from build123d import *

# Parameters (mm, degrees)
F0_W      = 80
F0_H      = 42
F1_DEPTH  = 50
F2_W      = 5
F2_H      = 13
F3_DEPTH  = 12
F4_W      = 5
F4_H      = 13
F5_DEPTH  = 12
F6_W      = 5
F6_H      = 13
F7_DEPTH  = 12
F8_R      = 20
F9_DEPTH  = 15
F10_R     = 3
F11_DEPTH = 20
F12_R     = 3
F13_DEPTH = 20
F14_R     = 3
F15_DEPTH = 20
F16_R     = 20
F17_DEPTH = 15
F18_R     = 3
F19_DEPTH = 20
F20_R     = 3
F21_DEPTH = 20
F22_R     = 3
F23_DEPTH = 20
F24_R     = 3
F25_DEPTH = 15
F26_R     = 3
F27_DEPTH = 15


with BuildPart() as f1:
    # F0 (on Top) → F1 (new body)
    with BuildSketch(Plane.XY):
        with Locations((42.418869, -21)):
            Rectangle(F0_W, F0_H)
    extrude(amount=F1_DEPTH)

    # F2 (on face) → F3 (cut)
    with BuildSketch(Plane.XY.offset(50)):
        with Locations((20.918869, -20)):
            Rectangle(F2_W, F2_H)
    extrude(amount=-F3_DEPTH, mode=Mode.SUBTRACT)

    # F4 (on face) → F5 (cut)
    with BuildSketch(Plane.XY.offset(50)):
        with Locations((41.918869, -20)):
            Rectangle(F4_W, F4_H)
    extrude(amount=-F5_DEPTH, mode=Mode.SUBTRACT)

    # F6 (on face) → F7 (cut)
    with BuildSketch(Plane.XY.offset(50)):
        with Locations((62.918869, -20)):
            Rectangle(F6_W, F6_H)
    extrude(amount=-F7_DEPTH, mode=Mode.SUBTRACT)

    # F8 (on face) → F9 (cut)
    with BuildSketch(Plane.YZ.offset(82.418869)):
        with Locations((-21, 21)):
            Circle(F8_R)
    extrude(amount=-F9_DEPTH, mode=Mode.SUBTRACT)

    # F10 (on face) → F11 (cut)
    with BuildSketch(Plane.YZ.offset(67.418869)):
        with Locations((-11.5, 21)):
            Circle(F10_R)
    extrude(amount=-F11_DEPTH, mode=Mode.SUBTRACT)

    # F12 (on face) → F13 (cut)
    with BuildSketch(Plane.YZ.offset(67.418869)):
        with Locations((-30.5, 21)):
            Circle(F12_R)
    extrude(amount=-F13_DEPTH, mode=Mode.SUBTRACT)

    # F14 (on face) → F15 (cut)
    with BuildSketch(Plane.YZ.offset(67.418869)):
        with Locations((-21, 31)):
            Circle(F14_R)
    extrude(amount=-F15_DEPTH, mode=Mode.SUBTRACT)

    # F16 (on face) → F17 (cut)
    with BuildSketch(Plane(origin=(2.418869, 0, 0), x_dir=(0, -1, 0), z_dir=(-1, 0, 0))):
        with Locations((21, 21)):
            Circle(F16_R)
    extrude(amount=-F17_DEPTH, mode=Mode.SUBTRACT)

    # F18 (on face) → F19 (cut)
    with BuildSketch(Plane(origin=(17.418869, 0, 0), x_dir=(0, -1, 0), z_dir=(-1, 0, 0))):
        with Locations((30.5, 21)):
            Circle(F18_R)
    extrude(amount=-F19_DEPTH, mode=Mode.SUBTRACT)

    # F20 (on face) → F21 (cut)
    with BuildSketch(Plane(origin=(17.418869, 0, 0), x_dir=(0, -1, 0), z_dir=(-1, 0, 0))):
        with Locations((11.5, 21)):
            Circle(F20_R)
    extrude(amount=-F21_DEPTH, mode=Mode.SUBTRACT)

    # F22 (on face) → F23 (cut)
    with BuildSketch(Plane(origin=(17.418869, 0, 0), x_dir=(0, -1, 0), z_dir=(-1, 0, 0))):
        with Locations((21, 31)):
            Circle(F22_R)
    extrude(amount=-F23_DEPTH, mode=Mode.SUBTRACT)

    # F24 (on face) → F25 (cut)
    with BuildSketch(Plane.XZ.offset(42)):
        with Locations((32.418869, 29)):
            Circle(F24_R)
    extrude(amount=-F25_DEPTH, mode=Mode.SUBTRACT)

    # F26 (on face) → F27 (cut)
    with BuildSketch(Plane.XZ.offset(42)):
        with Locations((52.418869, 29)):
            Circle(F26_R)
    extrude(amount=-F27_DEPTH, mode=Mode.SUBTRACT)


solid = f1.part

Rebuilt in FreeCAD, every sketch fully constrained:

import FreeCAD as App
import Part
import Sketcher
from FreeCAD import Vector
Q = App.Units.Quantity


def add_polygon(sketch, points):
    """Adds a closed chain of lines whose ends are joined by coincident constraints."""
    first, n = sketch.GeometryCount, len(points)
    for a, b in zip(points, points[1:] + points[:1]):
        sketch.addGeometry(Part.LineSegment(App.Vector(*a, 0), App.Vector(*b, 0)), False)
    for i in range(n):
        sketch.addConstraint(Sketcher.Constraint("Coincident", first + i, 2, first + (i + 1) % n, 1))

doc = App.newDocument("Part")
body = doc.addObject("PartDesign::Body", "Body")

sketch1 = body.newObject("Sketcher::SketchObject", "Sketch")
sketch1.AttachmentSupport = (doc.getObject("XY_Plane"), [""])
sketch1.MapMode = "FlatFace"
add_polygon(sketch1, [(2.418869, 0), (2.418869, -42), (82.418869, -42), (82.418869, 0)])
sketch1.addConstraint([
    Sketcher.Constraint("Vertical", 0),
    Sketcher.Constraint("Horizontal", 1),
    Sketcher.Constraint("Vertical", 2),
    Sketcher.Constraint("Horizontal", 3),
    Sketcher.Constraint("PointOnObject", 2, 2, -1),
    Sketcher.Constraint("DistanceX", 1, 1, 1, 2, Q("80 mm")),
    Sketcher.Constraint("DistanceY", 0, 2, 0, 1, Q("42 mm")),
    Sketcher.Constraint("DistanceX", -1, 1, 0, 2, Q("2.418869 mm")),
])
pad1 = body.newObject("PartDesign::Pad", "Pad")
pad1.Profile = sketch1
pad1.Length = 50

sketch2 = body.newObject("Sketcher::SketchObject", "Sketch001")
sketch2.AttachmentSupport = (doc.getObject("XY_Plane"), [""])
sketch2.MapMode = "FlatFace"
sketch2.AttachmentOffset = App.Placement(Vector(0, 0, 50), App.Rotation())
add_polygon(sketch2, [(18.418869, -13.5), (18.418869, -26.5), (23.418869, -26.5), (23.418869, -13.5)])
sketch2.addConstraint([
    Sketcher.Constraint("Vertical", 0),
    Sketcher.Constraint("Horizontal", 1),
    Sketcher.Constraint("Vertical", 2),
    Sketcher.Constraint("Horizontal", 3),
    Sketcher.Constraint("DistanceX", 1, 1, 1, 2, Q("5 mm")),
    Sketcher.Constraint("DistanceY", 0, 2, 0, 1, Q("13 mm")),
    Sketcher.Constraint("DistanceY", 0, 2, -1, 1, Q("26.5 mm")),
    Sketcher.Constraint("DistanceX", -1, 1, 0, 2, Q("18.418869 mm")),
])
pocket1 = body.newObject("PartDesign::Pocket", "Pocket")
pocket1.Profile = sketch2
pocket1.Length = 12

sketch3 = body.newObject("Sketcher::SketchObject", "Sketch002")
sketch3.AttachmentSupport = (doc.getObject("XY_Plane"), [""])
sketch3.MapMode = "FlatFace"
sketch3.AttachmentOffset = App.Placement(Vector(0, 0, 50), App.Rotation())
add_polygon(sketch3, [(39.418869, -13.5), (39.418869, -26.5), (44.418869, -26.5), (44.418869, -13.5)])
sketch3.addConstraint([
    Sketcher.Constraint("Vertical", 0),
    Sketcher.Constraint("Horizontal", 1),
    Sketcher.Constraint("Vertical", 2),
    Sketcher.Constraint("Horizontal", 3),
    Sketcher.Constraint("DistanceX", 1, 1, 1, 2, Q("5 mm")),
    Sketcher.Constraint("DistanceY", 0, 2, 0, 1, Q("13 mm")),
    Sketcher.Constraint("DistanceY", 0, 2, -1, 1, Q("26.5 mm")),
    Sketcher.Constraint("DistanceX", -1, 1, 0, 2, Q("39.418869 mm")),
])
pocket2 = body.newObject("PartDesign::Pocket", "Pocket001")
pocket2.Profile = sketch3
pocket2.Length = 12

sketch4 = body.newObject("Sketcher::SketchObject", "Sketch003")
sketch4.AttachmentSupport = (doc.getObject("XY_Plane"), [""])
sketch4.MapMode = "FlatFace"
sketch4.AttachmentOffset = App.Placement(Vector(0, 0, 50), App.Rotation())
add_polygon(sketch4, [(60.418869, -13.5), (60.418869, -26.5), (65.418869, -26.5), (65.418869, -13.5)])
sketch4.addConstraint([
    Sketcher.Constraint("Vertical", 0),
    Sketcher.Constraint("Horizontal", 1),
    Sketcher.Constraint("Vertical", 2),
    Sketcher.Constraint("Horizontal", 3),
    Sketcher.Constraint("DistanceX", 1, 1, 1, 2, Q("5 mm")),
    Sketcher.Constraint("DistanceY", 0, 2, 0, 1, Q("13 mm")),
    Sketcher.Constraint("DistanceY", 0, 2, -1, 1, Q("26.5 mm")),
    Sketcher.Constraint("DistanceX", -1, 1, 0, 2, Q("60.418869 mm")),
])
pocket3 = body.newObject("PartDesign::Pocket", "Pocket002")
pocket3.Profile = sketch4
pocket3.Length = 12

sketch5 = body.newObject("Sketcher::SketchObject", "Sketch004")
sketch5.AttachmentSupport = (doc.getObject("YZ_Plane"), [""])
sketch5.MapMode = "FlatFace"
sketch5.AttachmentOffset = App.Placement(Vector(0, 0, 82.418869), App.Rotation())
sketch5.addGeometry(Part.Circle(Vector(-21, 21, 0), Vector(0, 0, 1), 20), False)
sketch5.addConstraint([
    Sketcher.Constraint("Diameter", 0, Q("40 mm")),
    Sketcher.Constraint("DistanceX", 0, 3, -1, 1, Q("21 mm")),
    Sketcher.Constraint("DistanceY", -1, 1, 0, 3, Q("21 mm")),
])
pocket4 = body.newObject("PartDesign::Pocket", "Pocket003")
pocket4.Profile = sketch5
pocket4.Length = 15

sketch6 = body.newObject("Sketcher::SketchObject", "Sketch005")
sketch6.AttachmentSupport = (doc.getObject("YZ_Plane"), [""])
sketch6.MapMode = "FlatFace"
sketch6.AttachmentOffset = App.Placement(Vector(0, 0, 67.418869), App.Rotation())
sketch6.addGeometry(Part.Circle(Vector(-11.5, 21, 0), Vector(0, 0, 1), 3), False)
sketch6.addConstraint([
    Sketcher.Constraint("Diameter", 0, Q("6 mm")),
    Sketcher.Constraint("DistanceY", -1, 1, 0, 3, Q("21 mm")),
    Sketcher.Constraint("DistanceX", 0, 3, -1, 1, Q("11.5 mm")),
])
pocket5 = body.newObject("PartDesign::Pocket", "Pocket004")
pocket5.Profile = sketch6
pocket5.Length = 20

sketch7 = body.newObject("Sketcher::SketchObject", "Sketch006")
sketch7.AttachmentSupport = (doc.getObject("YZ_Plane"), [""])
sketch7.MapMode = "FlatFace"
sketch7.AttachmentOffset = App.Placement(Vector(0, 0, 67.418869), App.Rotation())
sketch7.addGeometry(Part.Circle(Vector(-30.5, 21, 0), Vector(0, 0, 1), 3), False)
sketch7.addConstraint([
    Sketcher.Constraint("Diameter", 0, Q("6 mm")),
    Sketcher.Constraint("DistanceY", -1, 1, 0, 3, Q("21 mm")),
    Sketcher.Constraint("DistanceX", 0, 3, -1, 1, Q("30.5 mm")),
])
pocket6 = body.newObject("PartDesign::Pocket", "Pocket005")
pocket6.Profile = sketch7
pocket6.Length = 20

sketch8 = body.newObject("Sketcher::SketchObject", "Sketch007")
sketch8.AttachmentSupport = (doc.getObject("YZ_Plane"), [""])
sketch8.MapMode = "FlatFace"
sketch8.AttachmentOffset = App.Placement(Vector(0, 0, 67.418869), App.Rotation())
sketch8.addGeometry(Part.Circle(Vector(-21, 31, 0), Vector(0, 0, 1), 3), False)
sketch8.addConstraint([
    Sketcher.Constraint("Diameter", 0, Q("6 mm")),
    Sketcher.Constraint("DistanceX", 0, 3, -1, 1, Q("21 mm")),
    Sketcher.Constraint("DistanceY", -1, 1, 0, 3, Q("31 mm")),
])
pocket7 = body.newObject("PartDesign::Pocket", "Pocket006")
pocket7.Profile = sketch8
pocket7.Length = 20

sketch9 = body.newObject("Sketcher::SketchObject", "Sketch008")
sketch9.AttachmentSupport = (doc.getObject("YZ_Plane"), [""])
sketch9.MapMode = "FlatFace"
sketch9.AttachmentOffset = App.Placement(Vector(0, 0, 2.418869), App.Rotation())
sketch9.addGeometry(Part.Circle(Vector(-21, 21, 0), Vector(0, 0, 1), 20), False)
sketch9.addConstraint([
    Sketcher.Constraint("Diameter", 0, Q("40 mm")),
    Sketcher.Constraint("DistanceX", 0, 3, -1, 1, Q("21 mm")),
    Sketcher.Constraint("DistanceY", -1, 1, 0, 3, Q("21 mm")),
])
pocket8 = body.newObject("PartDesign::Pocket", "Pocket007")
pocket8.Profile = sketch9
pocket8.Length = 15
pocket8.Reversed = True

sketch10 = body.newObject("Sketcher::SketchObject", "Sketch009")
sketch10.AttachmentSupport = (doc.getObject("YZ_Plane"), [""])
sketch10.MapMode = "FlatFace"
sketch10.AttachmentOffset = App.Placement(Vector(0, 0, 17.418869), App.Rotation())
sketch10.addGeometry(Part.Circle(Vector(-30.5, 21, 0), Vector(0, 0, 1), 3), False)
sketch10.addConstraint([
    Sketcher.Constraint("Diameter", 0, Q("6 mm")),
    Sketcher.Constraint("DistanceY", -1, 1, 0, 3, Q("21 mm")),
    Sketcher.Constraint("DistanceX", 0, 3, -1, 1, Q("30.5 mm")),
])
pocket9 = body.newObject("PartDesign::Pocket", "Pocket008")
pocket9.Profile = sketch10
pocket9.Length = 20
pocket9.Reversed = True

sketch11 = body.newObject("Sketcher::SketchObject", "Sketch010")
sketch11.AttachmentSupport = (doc.getObject("YZ_Plane"), [""])
sketch11.MapMode = "FlatFace"
sketch11.AttachmentOffset = App.Placement(Vector(0, 0, 17.418869), App.Rotation())
sketch11.addGeometry(Part.Circle(Vector(-11.5, 21, 0), Vector(0, 0, 1), 3), False)
sketch11.addConstraint([
    Sketcher.Constraint("Diameter", 0, Q("6 mm")),
    Sketcher.Constraint("DistanceY", -1, 1, 0, 3, Q("21 mm")),
    Sketcher.Constraint("DistanceX", 0, 3, -1, 1, Q("11.5 mm")),
])
pocket10 = body.newObject("PartDesign::Pocket", "Pocket009")
pocket10.Profile = sketch11
pocket10.Length = 20
pocket10.Reversed = True

sketch12 = body.newObject("Sketcher::SketchObject", "Sketch011")
sketch12.AttachmentSupport = (doc.getObject("YZ_Plane"), [""])
sketch12.MapMode = "FlatFace"
sketch12.AttachmentOffset = App.Placement(Vector(0, 0, 17.418869), App.Rotation())
sketch12.addGeometry(Part.Circle(Vector(-21, 31, 0), Vector(0, 0, 1), 3), False)
sketch12.addConstraint([
    Sketcher.Constraint("Diameter", 0, Q("6 mm")),
    Sketcher.Constraint("DistanceX", 0, 3, -1, 1, Q("21 mm")),
    Sketcher.Constraint("DistanceY", -1, 1, 0, 3, Q("31 mm")),
])
pocket11 = body.newObject("PartDesign::Pocket", "Pocket010")
pocket11.Profile = sketch12
pocket11.Length = 20
pocket11.Reversed = True

sketch13 = body.newObject("Sketcher::SketchObject", "Sketch012")
sketch13.AttachmentSupport = (doc.getObject("XZ_Plane"), [""])
sketch13.MapMode = "FlatFace"
sketch13.AttachmentOffset = App.Placement(Vector(0, 0, 42), App.Rotation())
sketch13.addGeometry(Part.Circle(Vector(32.418869, 29, 0), Vector(0, 0, 1), 3), False)
sketch13.addConstraint([
    Sketcher.Constraint("Diameter", 0, Q("6 mm")),
    Sketcher.Constraint("DistanceY", -1, 1, 0, 3, Q("29 mm")),
    Sketcher.Constraint("DistanceX", -1, 1, 0, 3, Q("32.418869 mm")),
])
pocket12 = body.newObject("PartDesign::Pocket", "Pocket011")
pocket12.Profile = sketch13
pocket12.Length = 15

sketch14 = body.newObject("Sketcher::SketchObject", "Sketch013")
sketch14.AttachmentSupport = (doc.getObject("XZ_Plane"), [""])
sketch14.MapMode = "FlatFace"
sketch14.AttachmentOffset = App.Placement(Vector(0, 0, 42), App.Rotation())
sketch14.addGeometry(Part.Circle(Vector(52.418869, 29, 0), Vector(0, 0, 1), 3), False)
sketch14.addConstraint([
    Sketcher.Constraint("Diameter", 0, Q("6 mm")),
    Sketcher.Constraint("DistanceY", -1, 1, 0, 3, Q("29 mm")),
    Sketcher.Constraint("DistanceX", -1, 1, 0, 3, Q("52.418869 mm")),
])
pocket13 = body.newObject("PartDesign::Pocket", "Pocket012")
pocket13.Profile = sketch14
pocket13.Length = 15

doc.recompute()
